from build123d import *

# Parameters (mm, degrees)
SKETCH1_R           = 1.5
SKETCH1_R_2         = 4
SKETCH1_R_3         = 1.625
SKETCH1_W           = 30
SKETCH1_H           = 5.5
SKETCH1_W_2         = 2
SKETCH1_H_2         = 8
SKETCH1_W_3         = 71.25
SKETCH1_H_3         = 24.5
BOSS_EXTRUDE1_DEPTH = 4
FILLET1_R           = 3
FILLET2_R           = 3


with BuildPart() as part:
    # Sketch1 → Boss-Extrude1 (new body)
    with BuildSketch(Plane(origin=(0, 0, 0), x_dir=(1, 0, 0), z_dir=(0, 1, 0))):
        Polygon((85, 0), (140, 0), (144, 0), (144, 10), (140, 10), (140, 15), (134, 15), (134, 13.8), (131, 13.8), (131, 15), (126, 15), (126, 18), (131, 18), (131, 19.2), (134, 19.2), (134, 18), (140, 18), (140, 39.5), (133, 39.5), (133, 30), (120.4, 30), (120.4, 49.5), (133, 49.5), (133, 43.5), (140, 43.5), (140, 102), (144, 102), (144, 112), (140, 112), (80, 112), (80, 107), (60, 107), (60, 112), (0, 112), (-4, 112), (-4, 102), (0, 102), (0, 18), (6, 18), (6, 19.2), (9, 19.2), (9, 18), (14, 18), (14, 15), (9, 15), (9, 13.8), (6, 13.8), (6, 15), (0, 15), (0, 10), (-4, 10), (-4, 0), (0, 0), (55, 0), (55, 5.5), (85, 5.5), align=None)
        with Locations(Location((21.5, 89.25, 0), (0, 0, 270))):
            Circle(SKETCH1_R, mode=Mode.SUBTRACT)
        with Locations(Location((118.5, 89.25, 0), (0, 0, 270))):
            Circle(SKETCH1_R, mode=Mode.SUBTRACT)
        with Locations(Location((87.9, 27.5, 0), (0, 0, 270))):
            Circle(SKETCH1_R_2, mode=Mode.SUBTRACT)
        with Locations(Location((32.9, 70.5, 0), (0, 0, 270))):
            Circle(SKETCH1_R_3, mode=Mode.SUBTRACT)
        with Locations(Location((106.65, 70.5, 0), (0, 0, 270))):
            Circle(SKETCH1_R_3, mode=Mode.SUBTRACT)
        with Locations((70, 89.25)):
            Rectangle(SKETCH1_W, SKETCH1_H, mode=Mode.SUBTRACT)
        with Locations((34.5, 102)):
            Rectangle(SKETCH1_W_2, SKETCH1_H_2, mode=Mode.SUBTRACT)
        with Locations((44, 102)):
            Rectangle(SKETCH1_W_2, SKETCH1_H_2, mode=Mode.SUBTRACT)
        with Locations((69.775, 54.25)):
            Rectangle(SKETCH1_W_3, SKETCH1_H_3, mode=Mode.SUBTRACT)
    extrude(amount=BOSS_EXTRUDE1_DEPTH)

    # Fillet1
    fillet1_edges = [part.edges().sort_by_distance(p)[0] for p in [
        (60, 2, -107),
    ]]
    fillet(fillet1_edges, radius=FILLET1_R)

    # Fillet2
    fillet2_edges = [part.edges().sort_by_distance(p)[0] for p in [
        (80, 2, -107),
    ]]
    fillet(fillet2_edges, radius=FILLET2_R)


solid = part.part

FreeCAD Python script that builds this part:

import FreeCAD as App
import Part
import Sketcher
from FreeCAD import Vector
Q = App.Units.Quantity


def edges_at(feature, points):
    """Names of the edges that pass closest to the given points."""
    edges = feature.Shape.Edges
    near = lambda p: min(range(len(edges)), key=lambda i: edges[i].distToShape(Part.Vertex(*p))[0])
    return sorted({f"Edge{near(p) + 1}" for p in points})

doc = App.newDocument("Part")
params = doc.addObject("Spreadsheet::Sheet", "Params")
for row, (alias, value) in enumerate([
    ("sketch1_diameter", "8 mm"),
    ("sketch1_diameter2", "3 mm"),
    ("sketch1_diameter3", "3.25 mm"),
    ("sketch1_width", "59 mm"),
    ("sketch1_width2", "4 mm"),
    ("pad1_length", "4 mm"),
    ("fillet_radius", "3 mm"),
    ("fillet2_radius", "3 mm"),
], start=1):
    params.set(f"A{row}", alias)
    params.set(f"B{row}", "=" + value)
    params.setAlias(f"B{row}", alias)

body = doc.addObject("PartDesign::Body", "Body")

sketch1 = body.newObject("Sketcher::SketchObject", "Sketch")
sketch1.AttachmentSupport = (doc.getObject("XZ_Plane"), [""])
sketch1.MapMode = "FlatFace"
sketch1.addGeometry([
    Part.LineSegment(Vector(85, 0, 0), Vector(144, 0, 0)),
    Part.LineSegment(Vector(144, 0, 0), Vector(144, -10, 0)),
    Part.LineSegment(Vector(144, -10, 0), Vector(140, -10, 0)),
    Part.LineSegment(Vector(140, -10, 0), Vector(140, -15, 0)),
    Part.LineSegment(Vector(140, -15, 0), Vector(134, -15, 0)),
    Part.LineSegment(Vector(134, -15, 0), Vector(134, -13.8, 0)),
    Part.LineSegment(Vector(134, -13.8, 0), Vector(131, -13.8, 0)),
    Part.LineSegment(Vector(131, -13.8, 0), Vector(131, -15, 0)),
    Part.LineSegment(Vector(131, -15, 0), Vector(126, -15, 0)),
    Part.LineSegment(Vector(126, -15, 0), Vector(126, -18, 0)),
    Part.LineSegment(Vector(126, -18, 0), Vector(131, -18, 0)),
    Part.LineSegment(Vector(131, -18, 0), Vector(131, -19.2, 0)),
    Part.LineSegment(Vector(131, -19.2, 0), Vector(134, -19.2, 0)),
    Part.LineSegment(Vector(134, -19.2, 0), Vector(134, -18, 0)),
    Part.LineSegment(Vector(134, -18, 0), Vector(140, -18, 0)),
    Part.LineSegment(Vector(140, -18, 0), Vector(140, -39.5, 0)),
    Part.LineSegment(Vector(140, -39.5, 0), Vector(133, -39.5, 0)),
    Part.LineSegment(Vector(133, -39.5, 0), Vector(133, -30, 0)),
    Part.LineSegment(Vector(133, -30, 0), Vector(120.4, -30, 0)),
    Part.LineSegment(Vector(120.4, -30, 0), Vector(120.4, -49.5, 0)),
    Part.LineSegment(Vector(120.4, -49.5, 0), Vector(133, -49.5, 0)),
    Part.LineSegment(Vector(133, -49.5, 0), Vector(133, -43.5, 0)),
    Part.LineSegment(Vector(133, -43.5, 0), Vector(140, -43.5, 0)),
    Part.LineSegment(Vector(140, -43.5, 0), Vector(140, -102, 0)),
    Part.LineSegment(Vector(140, -102, 0), Vector(144, -102, 0)),
    Part.LineSegment(Vector(144, -102, 0), Vector(144, -112, 0)),
    Part.LineSegment(Vector(144, -112, 0), Vector(80, -112, 0)),
    Part.LineSegment(Vector(80, -112, 0), Vector(80, -107, 0)),
    Part.LineSegment(Vector(80, -107, 0), Vector(60, -107, 0)),
    Part.LineSegment(Vector(60, -107, 0), Vector(60, -112, 0)),
    Part.LineSegment(Vector(60, -112, 0), Vector(-4, -112, 0)),
    Part.LineSegment(Vector(-4, -112, 0), Vector(-4, -102, 0)),
    Part.LineSegment(Vector(-4, -102, 0), Vector(0, -102, 0)),
    Part.LineSegment(Vector(0, -102, 0), Vector(0, -18, 0)),
    Part.LineSegment(Vector(0, -18, 0), Vector(6, -18, 0)),
    Part.LineSegment(Vector(6, -18, 0), Vector(6, -19.2, 0)),
    Part.LineSegment(Vector(6, -19.2, 0), Vector(9, -19.2, 0)),
    Part.LineSegment(Vector(9, -19.2, 0), Vector(9, -18, 0)),
    Part.LineSegment(Vector(9, -18, 0), Vector(14, -18, 0)),
    Part.LineSegment(Vector(14, -18, 0), Vector(14, -15, 0)),
    Part.LineSegment(Vector(14, -15, 0), Vector(9, -15, 0)),
    Part.LineSegment(Vector(9, -15, 0), Vector(9, -13.8, 0)),
    Part.LineSegment(Vector(9, -13.8, 0), Vector(6, -13.8, 0)),
    Part.LineSegment(Vector(6, -13.8, 0), Vector(6, -15, 0)),
    Part.LineSegment(Vector(6, -15, 0), Vector(0, -15, 0)),
    Part.LineSegment(Vector(0, -15, 0), Vector(0, -10, 0)),
    Part.LineSegment(Vector(0, -10, 0), Vector(-4, -10, 0)),
    Part.LineSegment(Vector(-4, -10, 0), Vector(-4, 0, 0)),
    Part.LineSegment(Vector(-4, 0, 0), Vector(55, 0, 0)),
    Part.LineSegment(Vector(55, 0, 0), Vector(55, -5.5, 0)),
    Part.LineSegment(Vector(55, -5.5, 0), Vector(85, -5.5, 0)),
    Part.LineSegment(Vector(85, -5.5, 0), Vector(85, 0, 0)),
    Part.LineSegment(Vector(105.4, -42, 0), Vector(34.1, -42, 0)),
    Part.LineSegment(Vector(34.1, -42, 0), Vector(34.1, -66.5, 0)),
    Part.LineSegment(Vector(34.1, -66.5, 0), Vector(105.4, -66.5, 0)),
    Part.LineSegment(Vector(105.4, -66.5, 0), Vector(105.4, -42, 0)),
    Part.Circle(Vector(87.9, -27.5, 0), Vector(0, 0, 1), 4),
    Part.Circle(Vector(32.9, -70.5, 0), Vector(0, 0, 1), 1.6),
    Part.Circle(Vector(21.5, -89.2, 0), Vector(0, 0, 1), 1.5),
    Part.LineSegment(Vector(35.5, -98, 0), Vector(33.5, -98, 0)),
    Part.LineSegment(Vector(33.5, -98, 0), Vector(33.5, -106, 0)),
    Part.LineSegment(Vector(33.5, -106, 0), Vector(35.5, -106, 0)),
    Part.LineSegment(Vector(35.5, -106, 0), Vector(35.5, -98, 0)),
    Part.LineSegment(Vector(45, -98, 0), Vector(43, -98, 0)),
    Part.LineSegment(Vector(43, -98, 0), Vector(43, -106, 0)),
    Part.LineSegment(Vector(43, -106, 0), Vector(45, -106, 0)),
    Part.LineSegment(Vector(45, -106, 0), Vector(45, -98, 0)),
    Part.Circle(Vector(106.7, -70.5, 0), Vector(0, 0, 1), 1.6),
    Part.LineSegment(Vector(85, -86.5, 0), Vector(55, -86.5, 0)),
    Part.LineSegment(Vector(55, -86.5, 0), Vector(55, -92, 0)),
    Part.LineSegment(Vector(55, -92, 0), Vector(85, -92, 0)),
    Part.LineSegment(Vector(85, -92, 0), Vector(85, -86.5, 0)),
    Part.Circle(Vector(118.5, -89.2, 0), Vector(0, 0, 1), 1.5),
], False)
sketch1.addConstraint([
    Sketcher.Constraint("Coincident", 0, 2, 1, 1),
    Sketcher.Constraint("Coincident", 1, 2, 2, 1),
    Sketcher.Constraint("Coincident", 2, 2, 3, 1),
    Sketcher.Constraint("Coincident", 3, 2, 4, 1),
    Sketcher.Constraint("Coincident", 4, 2, 5, 1),
    Sketcher.Constraint("Coincident", 5, 2, 6, 1),
    Sketcher.Constraint("Coincident", 6, 2, 7, 1),
    Sketcher.Constraint("Coincident", 7, 2, 8, 1),
    Sketcher.Constraint("Coincident", 8, 2, 9, 1),
    Sketcher.Constraint("Coincident", 9, 2, 10, 1),
    Sketcher.Constraint("Coincident", 10, 2, 11, 1),
    Sketcher.Constraint("Coincident", 11, 2, 12, 1),
    Sketcher.Constraint("Coincident", 12, 2, 13, 1),
    Sketcher.Constraint("Coincident", 13, 2, 14, 1),
    Sketcher.Constraint("Coincident", 14, 2, 15, 1),
    Sketcher.Constraint("Coincident", 15, 2, 16, 1),
    Sketcher.Constraint("Coincident", 16, 2, 17, 1),
    Sketcher.Constraint("Coincident", 17, 2, 18, 1),
    Sketcher.Constraint("Coincident", 18, 2, 19, 1),
    Sketcher.Constraint("Coincident", 19, 2, 20, 1),
    Sketcher.Constraint("Coincident", 20, 2, 21, 1),
    Sketcher.Constraint("Coincident", 21, 2, 22, 1),
    Sketcher.Constraint("Coincident", 22, 2, 23, 1),
    Sketcher.Constraint("Coincident", 23, 2, 24, 1),
    Sketcher.Constraint("Coincident", 24, 2, 25, 1),
    Sketcher.Constraint("Coincident", 25, 2, 26, 1),
    Sketcher.Constraint("Coincident", 26, 2, 27, 1),
    Sketcher.Constraint("Coincident", 27, 2, 28, 1),
    Sketcher.Constraint("Coincident", 28, 2, 29, 1),
    Sketcher.Constraint("Coincident", 29, 2, 30, 1),
    Sketcher.Constraint("Coincident", 30, 2, 31, 1),
    Sketcher.Constraint("Coincident", 31, 2, 32, 1),
    Sketcher.Constraint("Coincident", 32, 2, 33, 1),
    Sketcher.Constraint("Coincident", 33, 2, 34, 1),
    Sketcher.Constraint("Coincident", 34, 2, 35, 1),
    Sketcher.Constraint("Coincident", 35, 2, 36, 1),
    Sketcher.Constraint("Coincident", 36, 2, 37, 1),
    Sketcher.Constraint("Coincident", 37, 2, 38, 1),
    Sketcher.Constraint("Coincident", 38, 2, 39, 1),
    Sketcher.Constraint("Coincident", 39, 2, 40, 1),
    Sketcher.Constraint("Coincident", 40, 2, 41, 1),
    Sketcher.Constraint("Coincident", 41, 2, 42, 1),
    Sketcher.Constraint("Coincident", 42, 2, 43, 1),
    Sketcher.Constraint("Coincident", 43, 2, 44, 1),
    Sketcher.Constraint("Coincident", 44, 2, 45, 1),
    Sketcher.Constraint("Coincident", 45, 2, 46, 1),
    Sketcher.Constraint("Coincident", 46, 2, 47, 1),
    Sketcher.Constraint("Coincident", 47, 2, 48, 1),
    Sketcher.Constraint("Coincident", 48, 2, 49, 1),
    Sketcher.Constraint("Coincident", 49, 2, 50, 1),
    Sketcher.Constraint("Coincident", 50, 2, 51, 1),
    Sketcher.Constraint("Coincident", 51, 2, 0, 1),
    Sketcher.Constraint("Coincident", 52, 2, 53, 1),
    Sketcher.Constraint("Coincident", 53, 2, 54, 1),
    Sketcher.Constraint("Coincident", 54, 2, 55, 1),
    Sketcher.Constraint("Coincident", 55, 2, 52, 1),
    Sketcher.Constraint("Coincident", 59, 2, 60, 1),
    Sketcher.Constraint("Coincident", 60, 2, 61, 1),
    Sketcher.Constraint("Coincident", 61, 2, 62, 1),
    Sketcher.Constraint("Coincident", 62, 2, 59, 1),
    Sketcher.Constraint("Coincident", 63, 2, 64, 1),
    Sketcher.Constraint("Coincident", 64, 2, 65, 1),
    Sketcher.Constraint("Coincident", 65, 2, 66, 1),
    Sketcher.Constraint("Coincident", 66, 2, 63, 1),
    Sketcher.Constraint("Coincident", 68, 2, 69, 1),
    Sketcher.Constraint("Coincident", 69, 2, 70, 1),
    Sketcher.Constraint("Coincident", 70, 2, 71, 1),
    Sketcher.Constraint("Coincident", 71, 2, 68, 1),
    Sketcher.Constraint("Horizontal", 0),
    Sketcher.Constraint("Vertical", 1),
    Sketcher.Constraint("Horizontal", 2),
    Sketcher.Constraint("Vertical", 3),
    Sketcher.Constraint("Horizontal", 4),
    Sketcher.Constraint("Vertical", 5),
    Sketcher.Constraint("Horizontal", 6),
    Sketcher.Constraint("Vertical", 7),
    Sketcher.Constraint("Horizontal", 8),
    Sketcher.Constraint("Vertical", 9),
    Sketcher.Constraint("Horizontal", 10),
    Sketcher.Constraint("Vertical", 11),
    Sketcher.Constraint("Horizontal", 12),
    Sketcher.Constraint("Vertical", 13),
    Sketcher.Constraint("Horizontal", 14),
    Sketcher.Constraint("Vertical", 15),
    Sketcher.Constraint("Horizontal", 16),
    Sketcher.Constraint("Vertical", 17),
    Sketcher.Constraint("Horizontal", 18),
    Sketcher.Constraint("Vertical", 19),
    Sketcher.Constraint("Horizontal", 20),
    Sketcher.Constraint("Vertical", 21),
    Sketcher.Constraint("Horizontal", 22),
    Sketcher.Constraint("Vertical", 23),
    Sketcher.Constraint("Horizontal", 24),
    Sketcher.Constraint("Vertical", 25),
    Sketcher.Constraint("Horizontal", 26),
    Sketcher.Constraint("Vertical", 27),
    Sketcher.Constraint("Horizontal", 28),
    Sketcher.Constraint("Vertical", 29),
    Sketcher.Constraint("Horizontal", 30),
    Sketcher.Constraint("Vertical", 31),
    Sketcher.Constraint("Horizontal", 32),
    Sketcher.Constraint("Vertical", 33),
    Sketcher.Constraint("Horizontal", 34),
    Sketcher.Constraint("Vertical", 35),
    Sketcher.Constraint("Horizontal", 36),
    Sketcher.Constraint("Vertical", 37),
    Sketcher.Constraint("Horizontal", 38),
    Sketcher.Constraint("Vertical", 39),
    Sketcher.Constraint("Horizontal", 40),
    Sketcher.Constraint("Vertical", 41),
    Sketcher.Constraint("Horizontal", 42),
    Sketcher.Constraint("Vertical", 43),
    Sketcher.Constraint("Horizontal", 44),
    Sketcher.Constraint("Vertical", 45),
    Sketcher.Constraint("Horizontal", 46),
    Sketcher.Constraint("Vertical", 47),
    Sketcher.Constraint("Horizontal", 48),
    Sketcher.Constraint("Vertical", 49),
    Sketcher.Constraint("Horizontal", 50),
    Sketcher.Constraint("Vertical", 51),
    Sketcher.Constraint("Horizontal", 52),
    Sketcher.Constraint("Vertical", 53),
    Sketcher.Constraint("Horizontal", 54),
    Sketcher.Constraint("Vertical", 55),
    Sketcher.Constraint("Horizontal", 59),
    Sketcher.Constraint("Vertical", 60),
    Sketcher.Constraint("Horizontal", 61),
    Sketcher.Constraint("Vertical", 62),
    Sketcher.Constraint("Horizontal", 63),
    Sketcher.Constraint("Vertical", 64),
    Sketcher.Constraint("Horizontal", 65),
    Sketcher.Constraint("Vertical", 66),
    Sketcher.Constraint("Horizontal", 68),
    Sketcher.Constraint("Vertical", 69),
    Sketcher.Constraint("Horizontal", 70),
    Sketcher.Constraint("Vertical", 71),
    Sketcher.Constraint("Equal", 57, 67),
    Sketcher.Constraint("Equal", 58, 72),
    Sketcher.Constraint("PointOnObject", 0, 2, -1),
    Sketcher.Constraint("PointOnObject", 32, 2, -2),
    Sketcher.Constraint("PointOnObject", 44, 2, -2),
    Sketcher.Constraint("PointOnObject", 47, 2, -1),
    Sketcher.Constraint("Horizontal", 57, 3, 67, 3),
    Sketcher.Constraint("Horizontal", 58, 3, 72, 3),
    Sketcher.Constraint("Horizontal", 4, 2, 7, 2),
    Sketcher.Constraint("Horizontal", 10, 2, 13, 2),
    Sketcher.Constraint("Horizontal", 26, 2, 29, 2),
    Sketcher.Constraint("Horizontal", 24, 2, 31, 2),
    Sketcher.Constraint("Horizontal", 14, 2, 33, 2),
    Sketcher.Constraint("Horizontal", 12, 2, 35, 2),
    Sketcher.Constraint("Horizontal", 34, 2, 37, 2),
    Sketcher.Constraint("Horizontal", 8, 2, 39, 2),
    Sketcher.Constraint("Horizontal", 6, 2, 41, 2),
    Sketcher.Constraint("Horizontal", 40, 2, 43, 2),
    Sketcher.Constraint("Horizontal", 2, 2, 45, 2),
    Sketcher.Constraint("Horizontal", 62, 2, 63, 2),
    Sketcher.Constraint("Horizontal", 61, 2, 64, 2),
    Sketcher.Constraint("Vertical", 7, 2, 10, 2),
    Sketcher.Constraint("Vertical", 5, 2, 12, 2),
    Sketcher.Constraint("Vertical", 3, 2, 14, 2),
    Sketcher.Constraint("Vertical", 17, 2, 20, 2),
    Sketcher.Constraint("Vertical", 15, 2, 22, 2),
    Sketcher.Constraint("Vertical", 1, 2, 24, 2),
    Sketcher.Constraint("Vertical", 37, 2, 40, 2),
    Sketcher.Constraint("Vertical", 35, 2, 42, 2),
    Sketcher.Constraint("Vertical", 31, 2, 46, 2),
    Sketcher.Constraint("Vertical", 49, 2, 68, 2),
    Sketcher.Constraint("Vertical", 51, 2, 70, 2),
    Sketcher.Constraint("Equal", 26, 30),
    Sketcher.Constraint("Equal", 24, 32),
    Sketcher.Constraint("Equal", 14, 34),
    Sketcher.Constraint("Equal", 12, 36),
    Sketcher.Constraint("Equal", 10, 38),
    Sketcher.Constraint("Equal", 0, 48),
    Sketcher.Constraint("Equal", 61, 63),
    Sketcher.Constraint("Equal", 40, 3),
    Sketcher.Constraint("Equal", 42, 9),
    Sketcher.Constraint("Equal", 7, 11),
    Sketcher.Constraint("Equal", 44, 21),
    Sketcher.Constraint("Equal", 1, 25),
    Sketcher.Constraint("Equal", 3, 27),
    Sketcher.Constraint("Equal", 51, 69),
    Sketcher.Constraint("Diameter", 56, Q("8 mm")),
    Sketcher.Constraint("Diameter", 58, Q("3 mm")),
    Sketcher.Constraint("Diameter", 57, Q("3.25 mm")),
    Sketcher.Constraint("DistanceX", 0, 1, 0, 2, Q("59 mm")),
    Sketcher.Constraint("DistanceX", 2, 2, 2, 1, Q("4 mm")),
    Sketcher.Constraint("DistanceX", 4, 2, 4, 1, Q("6 mm")),
    Sketcher.Constraint("DistanceX", 6, 2, 6, 1, Q("3 mm")),
    Sketcher.Constraint("DistanceX", 8, 2, 8, 1, Q("5 mm")),
    Sketcher.Constraint("DistanceX", 16, 2, 16, 1, Q("7 mm")),
    Sketcher.Constraint("DistanceX", 26, 2, 26, 1, Q("64 mm")),
    Sketcher.Constraint("DistanceX", 28, 2, 28, 1, Q("20 mm")),
    Sketcher.Constraint("DistanceX", 59, 2, 59, 1, Q("2 mm")),
    Sketcher.Constraint("DistanceY", 1, 2, 1, 1, Q("10 mm")),
    Sketcher.Constraint("DistanceY", 33, 1, 33, 2, Q("84 mm")),
    Sketcher.Constraint("DistanceY", 60, 2, 60, 1, Q("8 mm")),
    Sketcher.Constraint("DistanceX", 18, 2, 18, 1, Q("12.6 mm")),
    Sketcher.Constraint("DistanceY", 5, 1, 5, 2, Q("1.2 mm")),
    Sketcher.Constraint("DistanceY", 15, 2, 15, 1, Q("21.5 mm")),
    Sketcher.Constraint("DistanceY", 17, 1, 17, 2, Q("9.5 mm")),
    Sketcher.Constraint("DistanceY", 19, 2, 19, 1, Q("19.5 mm")),
    Sketcher.Constraint("DistanceY", 49, 2, 49, 1, Q("5.5 mm")),
    Sketcher.Constraint("DistanceY", 53, 2, 53, 1, Q("24.5 mm")),
    Sketcher.Constraint("DistanceY", 52, 2, -1, 1, Q("42 mm")),
    Sketcher.Constraint("DistanceY", 59, 2, -1, 1, Q("98 mm")),
    Sketcher.Constraint("DistanceX", -1, 1, 63, 2, Q("43 mm")),
    Sketcher.Constraint("DistanceY", 69, 2, -1, 1, Q("92 mm")),
    Sketcher.Constraint("DistanceX", 52, 2, 52, 1, Q("71.25 mm")),
    Sketcher.Constraint("DistanceX", -1, 1, 56, 3, Q("87.9 mm")),
    Sketcher.Constraint("DistanceY", 56, 3, -1, 1, Q("27.5 mm")),
    Sketcher.Constraint("DistanceX", -1, 1, 57, 3, Q("32.9 mm")),
    Sketcher.Constraint("DistanceY", 57, 3, -1, 1, Q("70.5 mm")),
    Sketcher.Constraint("DistanceX", -1, 1, 58, 3, Q("21.5 mm")),
    Sketcher.Constraint("DistanceX", -1, 1, 72, 3, Q("118.5 mm")),
    Sketcher.Constraint("DistanceX", -1, 1, 54, 2, Q("105.4 mm")),
    Sketcher.Constraint("DistanceX", -1, 1, 59, 2, Q("33.5 mm")),
    Sketcher.Constraint("DistanceY", 58, 3, -1, 1, Q("89.25 mm")),
    Sketcher.Constraint("DistanceX", -1, 1, 67, 3, Q("106.65 mm")),
])
sketch1.setExpression("Constraints[182]", "Params.sketch1_diameter")
sketch1.setExpression("Constraints[183]", "Params.sketch1_diameter2")
sketch1.setExpression("Constraints[184]", "Params.sketch1_diameter3")
sketch1.setExpression("Constraints[185]", "Params.sketch1_width")
sketch1.setExpression("Constraints[186]", "Params.sketch1_width2")
pad1 = body.newObject("PartDesign::Pad", "Pad")
pad1.Profile = sketch1
pad1.setExpression("Length", "Params.pad1_length")
pad1.Reversed = True
doc.recompute()

fillet = body.newObject("PartDesign::Fillet", "Fillet")
fillet.Base = (pad1, edges_at(pad1, [(60, 2, -107)]))
fillet.setExpression("Radius", "Params.fillet_radius")
doc.recompute()

fillet2 = body.newObject("PartDesign::Fillet", "Fillet001")
fillet2.Base = (fillet, edges_at(fillet, [(80, 2, -107)]))
fillet2.setExpression("Radius", "Params.fillet2_radius")

doc.recompute()
